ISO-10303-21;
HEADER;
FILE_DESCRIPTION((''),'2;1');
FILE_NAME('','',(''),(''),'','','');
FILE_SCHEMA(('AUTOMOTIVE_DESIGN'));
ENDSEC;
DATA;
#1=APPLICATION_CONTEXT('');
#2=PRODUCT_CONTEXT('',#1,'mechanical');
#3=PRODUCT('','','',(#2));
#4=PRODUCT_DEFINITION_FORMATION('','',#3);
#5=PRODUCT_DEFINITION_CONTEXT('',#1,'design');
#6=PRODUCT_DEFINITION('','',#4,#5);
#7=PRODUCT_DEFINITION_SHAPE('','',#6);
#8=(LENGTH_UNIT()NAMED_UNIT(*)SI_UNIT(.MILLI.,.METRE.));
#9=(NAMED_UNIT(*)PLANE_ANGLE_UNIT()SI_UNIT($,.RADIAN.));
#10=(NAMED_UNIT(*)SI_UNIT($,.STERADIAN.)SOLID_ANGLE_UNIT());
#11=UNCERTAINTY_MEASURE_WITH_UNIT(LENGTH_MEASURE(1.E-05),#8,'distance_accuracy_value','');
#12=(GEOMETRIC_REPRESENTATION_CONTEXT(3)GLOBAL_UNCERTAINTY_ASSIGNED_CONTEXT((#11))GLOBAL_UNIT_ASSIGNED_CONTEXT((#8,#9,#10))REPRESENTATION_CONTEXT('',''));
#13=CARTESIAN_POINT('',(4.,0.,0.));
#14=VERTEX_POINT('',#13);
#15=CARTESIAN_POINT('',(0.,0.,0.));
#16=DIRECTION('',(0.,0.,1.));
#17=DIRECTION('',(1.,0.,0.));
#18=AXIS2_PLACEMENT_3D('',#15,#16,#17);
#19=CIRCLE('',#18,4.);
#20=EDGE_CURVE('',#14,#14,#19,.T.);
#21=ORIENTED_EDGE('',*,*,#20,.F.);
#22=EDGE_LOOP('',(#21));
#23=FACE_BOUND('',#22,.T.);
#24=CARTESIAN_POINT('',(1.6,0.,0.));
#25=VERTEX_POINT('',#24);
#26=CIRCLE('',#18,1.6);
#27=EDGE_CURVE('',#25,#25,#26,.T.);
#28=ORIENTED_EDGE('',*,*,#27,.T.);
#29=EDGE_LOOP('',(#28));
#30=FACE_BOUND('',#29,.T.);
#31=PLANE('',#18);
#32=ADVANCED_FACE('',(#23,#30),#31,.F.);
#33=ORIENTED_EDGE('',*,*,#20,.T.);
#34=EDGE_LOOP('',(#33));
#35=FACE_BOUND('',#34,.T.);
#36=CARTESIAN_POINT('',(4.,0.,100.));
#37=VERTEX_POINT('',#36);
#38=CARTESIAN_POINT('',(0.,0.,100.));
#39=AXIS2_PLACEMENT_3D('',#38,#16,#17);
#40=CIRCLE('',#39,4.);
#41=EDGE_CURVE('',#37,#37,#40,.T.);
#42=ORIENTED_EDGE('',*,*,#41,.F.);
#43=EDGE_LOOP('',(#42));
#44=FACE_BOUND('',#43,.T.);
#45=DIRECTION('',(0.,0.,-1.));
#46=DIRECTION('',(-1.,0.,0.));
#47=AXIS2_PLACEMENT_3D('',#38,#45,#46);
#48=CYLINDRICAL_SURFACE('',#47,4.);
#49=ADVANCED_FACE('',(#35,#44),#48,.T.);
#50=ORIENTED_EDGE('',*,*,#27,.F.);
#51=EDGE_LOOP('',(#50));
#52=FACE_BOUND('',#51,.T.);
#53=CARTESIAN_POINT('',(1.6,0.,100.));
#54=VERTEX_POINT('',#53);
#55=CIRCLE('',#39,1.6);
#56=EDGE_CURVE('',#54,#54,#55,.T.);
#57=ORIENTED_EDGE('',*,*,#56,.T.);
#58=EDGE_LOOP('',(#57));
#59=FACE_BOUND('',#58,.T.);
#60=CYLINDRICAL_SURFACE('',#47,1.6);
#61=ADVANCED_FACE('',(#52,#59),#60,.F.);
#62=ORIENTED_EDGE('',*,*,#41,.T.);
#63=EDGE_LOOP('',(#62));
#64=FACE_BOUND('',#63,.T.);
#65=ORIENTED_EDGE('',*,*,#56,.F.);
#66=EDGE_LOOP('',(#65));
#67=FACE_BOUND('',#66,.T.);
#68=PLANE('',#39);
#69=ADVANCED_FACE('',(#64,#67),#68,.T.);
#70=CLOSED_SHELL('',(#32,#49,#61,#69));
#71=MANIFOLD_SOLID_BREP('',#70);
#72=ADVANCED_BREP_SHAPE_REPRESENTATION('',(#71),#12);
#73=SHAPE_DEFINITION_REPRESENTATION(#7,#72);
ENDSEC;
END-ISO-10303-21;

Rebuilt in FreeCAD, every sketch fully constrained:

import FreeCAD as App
import Part
import Sketcher

doc = App.newDocument("Part")
body = doc.addObject("PartDesign::Body", "Body")

sketch1 = doc.addObject("Sketcher::SketchObject", "Sketch")
body.addObject(sketch1)
sketch1.AttachmentSupport = (doc.XY_Plane, [""])
sketch1.MapMode = "FlatFace"
sketch1.addGeometry([
    Part.Circle(App.Vector(0, 0, 0), App.Vector(0, 0, 1), 4),
    Part.Circle(App.Vector(0, 0, 0), App.Vector(0, 0, 1), 1.6),
], False)
sketch1.addConstraint([
    Sketcher.Constraint("Coincident", 0, 3, -1, 1),
    Sketcher.Constraint("Coincident", 1, 3, -1, 1),
    Sketcher.Constraint("Diameter", 0, 8.0),
    Sketcher.Constraint("Diameter", 1, 3.2),
])
pad1 = doc.addObject("PartDesign::Pad", "Pad")
body.addObject(pad1)
pad1.Profile = sketch1
pad1.Length = 100

doc.recompute()
